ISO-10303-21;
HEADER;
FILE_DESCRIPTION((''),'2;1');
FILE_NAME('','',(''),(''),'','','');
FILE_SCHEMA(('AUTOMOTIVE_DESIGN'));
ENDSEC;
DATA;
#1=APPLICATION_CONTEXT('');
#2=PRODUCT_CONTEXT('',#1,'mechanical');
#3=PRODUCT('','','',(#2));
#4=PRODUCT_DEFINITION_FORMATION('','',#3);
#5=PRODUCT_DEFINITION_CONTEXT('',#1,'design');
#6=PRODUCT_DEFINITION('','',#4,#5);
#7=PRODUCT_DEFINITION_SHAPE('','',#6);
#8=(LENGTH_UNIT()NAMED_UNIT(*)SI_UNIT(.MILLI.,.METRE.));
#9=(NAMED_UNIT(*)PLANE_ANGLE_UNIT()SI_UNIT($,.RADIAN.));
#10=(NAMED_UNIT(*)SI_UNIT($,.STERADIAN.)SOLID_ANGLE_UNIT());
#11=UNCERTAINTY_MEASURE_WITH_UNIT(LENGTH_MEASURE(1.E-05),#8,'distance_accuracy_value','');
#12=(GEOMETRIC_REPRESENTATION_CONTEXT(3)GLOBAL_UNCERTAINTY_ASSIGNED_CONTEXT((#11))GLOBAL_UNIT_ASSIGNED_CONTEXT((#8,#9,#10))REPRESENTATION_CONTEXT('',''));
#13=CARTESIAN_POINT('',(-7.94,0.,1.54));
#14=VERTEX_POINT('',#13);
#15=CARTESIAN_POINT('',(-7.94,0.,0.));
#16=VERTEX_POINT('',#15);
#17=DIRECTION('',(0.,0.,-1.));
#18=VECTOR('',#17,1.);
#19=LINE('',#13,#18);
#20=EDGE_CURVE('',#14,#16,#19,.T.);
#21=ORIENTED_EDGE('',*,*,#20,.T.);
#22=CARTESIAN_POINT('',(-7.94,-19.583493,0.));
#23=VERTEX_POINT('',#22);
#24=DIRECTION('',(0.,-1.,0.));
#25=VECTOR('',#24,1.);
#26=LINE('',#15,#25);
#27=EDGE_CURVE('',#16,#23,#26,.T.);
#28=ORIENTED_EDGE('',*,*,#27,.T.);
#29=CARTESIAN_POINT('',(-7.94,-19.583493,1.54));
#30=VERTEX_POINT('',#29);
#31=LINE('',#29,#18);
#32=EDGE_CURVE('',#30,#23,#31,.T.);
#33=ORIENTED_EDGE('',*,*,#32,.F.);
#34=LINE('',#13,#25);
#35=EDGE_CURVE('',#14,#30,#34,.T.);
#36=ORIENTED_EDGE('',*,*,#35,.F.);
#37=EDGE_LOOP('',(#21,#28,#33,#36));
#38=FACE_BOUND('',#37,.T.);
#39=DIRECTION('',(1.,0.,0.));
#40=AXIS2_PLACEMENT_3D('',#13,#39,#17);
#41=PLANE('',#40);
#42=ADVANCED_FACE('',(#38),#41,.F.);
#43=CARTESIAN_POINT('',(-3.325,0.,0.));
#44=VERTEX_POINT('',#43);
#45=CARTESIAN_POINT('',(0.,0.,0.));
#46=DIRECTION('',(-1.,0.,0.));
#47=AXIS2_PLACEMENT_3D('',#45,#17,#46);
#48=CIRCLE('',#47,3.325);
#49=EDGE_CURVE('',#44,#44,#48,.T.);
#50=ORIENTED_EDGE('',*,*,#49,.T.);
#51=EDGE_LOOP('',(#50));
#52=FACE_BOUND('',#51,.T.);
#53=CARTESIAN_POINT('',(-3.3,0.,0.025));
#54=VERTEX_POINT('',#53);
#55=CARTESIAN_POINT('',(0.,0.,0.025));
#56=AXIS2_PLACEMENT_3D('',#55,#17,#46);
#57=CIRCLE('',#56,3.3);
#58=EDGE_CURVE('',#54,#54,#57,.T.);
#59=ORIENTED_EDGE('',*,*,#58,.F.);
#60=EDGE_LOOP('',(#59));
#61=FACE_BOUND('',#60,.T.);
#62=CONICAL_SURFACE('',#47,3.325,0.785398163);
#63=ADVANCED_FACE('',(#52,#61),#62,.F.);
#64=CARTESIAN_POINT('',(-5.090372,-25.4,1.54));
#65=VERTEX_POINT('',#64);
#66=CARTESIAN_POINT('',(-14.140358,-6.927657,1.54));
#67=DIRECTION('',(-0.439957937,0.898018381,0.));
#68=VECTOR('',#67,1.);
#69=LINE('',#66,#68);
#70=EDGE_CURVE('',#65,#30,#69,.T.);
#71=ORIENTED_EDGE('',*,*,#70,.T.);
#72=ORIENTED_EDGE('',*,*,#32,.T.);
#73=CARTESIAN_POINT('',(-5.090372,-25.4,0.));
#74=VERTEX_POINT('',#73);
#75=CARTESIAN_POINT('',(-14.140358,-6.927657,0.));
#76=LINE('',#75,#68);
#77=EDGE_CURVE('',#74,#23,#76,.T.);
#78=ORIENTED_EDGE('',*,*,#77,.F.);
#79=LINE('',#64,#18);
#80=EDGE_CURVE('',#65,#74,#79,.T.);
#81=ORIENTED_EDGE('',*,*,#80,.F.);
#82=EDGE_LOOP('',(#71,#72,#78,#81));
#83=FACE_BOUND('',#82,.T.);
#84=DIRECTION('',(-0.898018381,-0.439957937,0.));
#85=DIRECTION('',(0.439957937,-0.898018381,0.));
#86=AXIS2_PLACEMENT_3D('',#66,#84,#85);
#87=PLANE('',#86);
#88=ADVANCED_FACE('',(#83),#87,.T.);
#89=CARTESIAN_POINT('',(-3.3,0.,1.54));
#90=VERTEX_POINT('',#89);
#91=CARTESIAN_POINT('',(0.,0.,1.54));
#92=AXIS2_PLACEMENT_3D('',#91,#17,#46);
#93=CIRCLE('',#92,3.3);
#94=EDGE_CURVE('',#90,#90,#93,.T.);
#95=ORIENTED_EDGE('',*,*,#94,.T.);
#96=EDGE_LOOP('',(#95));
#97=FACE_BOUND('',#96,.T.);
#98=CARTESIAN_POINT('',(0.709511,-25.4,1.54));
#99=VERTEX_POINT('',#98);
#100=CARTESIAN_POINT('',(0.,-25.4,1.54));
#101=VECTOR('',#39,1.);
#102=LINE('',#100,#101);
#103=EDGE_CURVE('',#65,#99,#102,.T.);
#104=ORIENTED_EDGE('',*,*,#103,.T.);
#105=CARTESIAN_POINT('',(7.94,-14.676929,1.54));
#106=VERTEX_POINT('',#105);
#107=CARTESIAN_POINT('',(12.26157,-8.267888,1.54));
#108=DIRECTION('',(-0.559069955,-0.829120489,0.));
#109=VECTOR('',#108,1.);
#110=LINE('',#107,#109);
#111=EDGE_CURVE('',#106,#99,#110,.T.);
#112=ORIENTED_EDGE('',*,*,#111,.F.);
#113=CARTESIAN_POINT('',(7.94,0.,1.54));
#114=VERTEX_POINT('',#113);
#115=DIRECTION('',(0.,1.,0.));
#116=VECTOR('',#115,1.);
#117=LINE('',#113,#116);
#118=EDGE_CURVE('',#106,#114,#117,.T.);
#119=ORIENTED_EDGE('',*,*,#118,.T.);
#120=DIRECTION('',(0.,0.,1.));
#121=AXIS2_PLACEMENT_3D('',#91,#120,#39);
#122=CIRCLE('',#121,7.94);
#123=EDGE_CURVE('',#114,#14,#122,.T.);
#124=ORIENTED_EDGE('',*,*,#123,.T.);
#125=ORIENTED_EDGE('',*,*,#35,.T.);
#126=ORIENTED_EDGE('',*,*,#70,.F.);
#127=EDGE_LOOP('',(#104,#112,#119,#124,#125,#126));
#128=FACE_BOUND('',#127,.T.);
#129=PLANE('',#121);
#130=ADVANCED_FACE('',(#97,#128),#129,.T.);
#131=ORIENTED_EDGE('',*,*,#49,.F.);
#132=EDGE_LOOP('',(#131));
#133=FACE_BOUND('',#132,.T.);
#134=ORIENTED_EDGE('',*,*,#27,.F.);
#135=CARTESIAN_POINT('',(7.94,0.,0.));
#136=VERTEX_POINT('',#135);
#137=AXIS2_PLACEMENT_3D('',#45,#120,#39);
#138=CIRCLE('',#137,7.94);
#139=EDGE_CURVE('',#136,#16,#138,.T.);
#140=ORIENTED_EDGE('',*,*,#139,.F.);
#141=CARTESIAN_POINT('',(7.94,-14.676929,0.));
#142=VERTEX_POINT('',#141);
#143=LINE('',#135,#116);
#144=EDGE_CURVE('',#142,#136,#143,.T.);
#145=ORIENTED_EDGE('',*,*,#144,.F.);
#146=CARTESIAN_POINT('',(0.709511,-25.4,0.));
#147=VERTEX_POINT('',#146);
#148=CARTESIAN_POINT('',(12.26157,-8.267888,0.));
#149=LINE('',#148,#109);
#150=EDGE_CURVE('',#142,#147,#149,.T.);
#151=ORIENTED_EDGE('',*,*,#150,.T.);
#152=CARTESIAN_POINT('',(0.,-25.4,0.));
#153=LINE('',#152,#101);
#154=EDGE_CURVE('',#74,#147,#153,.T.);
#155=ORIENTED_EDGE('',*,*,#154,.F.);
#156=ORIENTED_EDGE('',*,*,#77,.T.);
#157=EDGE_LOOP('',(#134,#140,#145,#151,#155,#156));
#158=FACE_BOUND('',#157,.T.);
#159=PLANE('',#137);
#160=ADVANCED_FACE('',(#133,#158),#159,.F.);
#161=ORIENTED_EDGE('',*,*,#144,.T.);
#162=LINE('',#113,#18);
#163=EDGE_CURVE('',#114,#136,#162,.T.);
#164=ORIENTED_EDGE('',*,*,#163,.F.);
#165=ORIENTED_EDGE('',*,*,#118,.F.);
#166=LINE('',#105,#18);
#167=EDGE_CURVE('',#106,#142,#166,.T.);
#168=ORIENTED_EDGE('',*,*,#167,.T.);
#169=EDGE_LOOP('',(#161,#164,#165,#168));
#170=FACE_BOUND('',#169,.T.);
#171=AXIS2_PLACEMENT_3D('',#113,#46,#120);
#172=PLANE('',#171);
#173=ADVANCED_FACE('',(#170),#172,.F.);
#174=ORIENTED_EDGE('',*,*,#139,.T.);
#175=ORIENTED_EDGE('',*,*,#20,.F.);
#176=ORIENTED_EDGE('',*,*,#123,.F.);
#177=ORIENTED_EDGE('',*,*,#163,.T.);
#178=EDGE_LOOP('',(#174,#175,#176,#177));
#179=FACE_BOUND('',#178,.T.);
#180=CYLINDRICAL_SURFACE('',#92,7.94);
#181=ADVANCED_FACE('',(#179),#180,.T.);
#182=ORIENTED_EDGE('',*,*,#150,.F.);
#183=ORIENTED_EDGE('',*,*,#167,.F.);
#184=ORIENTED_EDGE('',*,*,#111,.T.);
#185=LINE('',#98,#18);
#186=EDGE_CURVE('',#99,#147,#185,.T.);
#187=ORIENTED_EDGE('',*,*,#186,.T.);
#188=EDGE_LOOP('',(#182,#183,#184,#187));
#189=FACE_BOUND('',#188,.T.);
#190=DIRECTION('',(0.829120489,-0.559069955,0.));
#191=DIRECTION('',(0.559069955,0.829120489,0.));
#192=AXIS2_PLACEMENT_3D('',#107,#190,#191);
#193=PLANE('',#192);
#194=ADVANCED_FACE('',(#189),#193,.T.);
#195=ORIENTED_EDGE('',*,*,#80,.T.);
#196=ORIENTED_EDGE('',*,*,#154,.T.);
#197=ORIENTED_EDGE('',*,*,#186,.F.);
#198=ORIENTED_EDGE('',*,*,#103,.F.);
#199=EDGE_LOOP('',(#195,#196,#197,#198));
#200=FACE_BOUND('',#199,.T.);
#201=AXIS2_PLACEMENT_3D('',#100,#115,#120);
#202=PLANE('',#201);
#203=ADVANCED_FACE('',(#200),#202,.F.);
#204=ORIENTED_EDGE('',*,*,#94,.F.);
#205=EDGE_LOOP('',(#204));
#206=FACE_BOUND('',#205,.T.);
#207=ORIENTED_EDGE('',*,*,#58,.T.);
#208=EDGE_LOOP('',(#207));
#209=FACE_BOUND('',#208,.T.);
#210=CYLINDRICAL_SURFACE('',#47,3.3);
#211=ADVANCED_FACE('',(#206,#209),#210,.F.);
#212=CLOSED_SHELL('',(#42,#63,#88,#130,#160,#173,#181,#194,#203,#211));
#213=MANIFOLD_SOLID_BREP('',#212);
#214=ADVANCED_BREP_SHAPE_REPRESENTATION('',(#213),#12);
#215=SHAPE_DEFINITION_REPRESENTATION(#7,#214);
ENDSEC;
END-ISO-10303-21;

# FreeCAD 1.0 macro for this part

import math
import FreeCAD as App
import Part
import Sketcher
Q = App.Units.Quantity

doc = App.newDocument("Part")
body = doc.addObject("PartDesign::Body", "Body")

sketch1 = body.newObject("Sketcher::SketchObject", "Sketch")
sketch1.AttachmentSupport = (doc.getObject("XY_Plane"), [""])
sketch1.MapMode = "FlatFace"
sketch1.addGeometry(Part.LineSegment(App.Vector(7.94, -14.676929, 0), App.Vector(7.94, 0, 0)), False)
sketch1.addGeometry(Part.ArcOfCircle(Part.Circle(App.Vector(0, 0, 0), App.Vector(0, 0, 1), 7.94), math.radians(0), math.radians(180)), False)
sketch1.addGeometry(Part.LineSegment(App.Vector(-7.94, 0, 0), App.Vector(-7.94, -19.583493, 0)), False)
sketch1.addGeometry(Part.LineSegment(App.Vector(-7.94, -19.583493, 0), App.Vector(-5.090372, -25.4, 0)), False)
sketch1.addGeometry(Part.LineSegment(App.Vector(-5.090372, -25.4, 0), App.Vector(0.709511, -25.4, 0)), False)
sketch1.addGeometry(Part.LineSegment(App.Vector(0.709511, -25.4, 0), App.Vector(7.94, -14.676929, 0)), False)
sketch1.addConstraint(Sketcher.Constraint("Tangent", 0, 2, 1, 1))
sketch1.addConstraint(Sketcher.Constraint("Tangent", 1, 2, 2, 1))
sketch1.addConstraint(Sketcher.Constraint("Coincident", 2, 2, 3, 1))
sketch1.addConstraint(Sketcher.Constraint("Coincident", 3, 2, 4, 1))
sketch1.addConstraint(Sketcher.Constraint("Coincident", 4, 2, 5, 1))
sketch1.addConstraint(Sketcher.Constraint("Coincident", 5, 2, 0, 1))
sketch1.addConstraint(Sketcher.Constraint("Vertical", 0))
sketch1.addConstraint(Sketcher.Constraint("Vertical", 2))
sketch1.addConstraint(Sketcher.Constraint("Horizontal", 4))
sketch1.addConstraint(Sketcher.Constraint("Coincident", 1, 3, -1, 1))
sketch1.addConstraint(Sketcher.Constraint("Radius", 1, 7.94))
sketch1.addConstraint(Sketcher.Constraint("DistanceY", 3, 2, -1, 1, 25.4))
sketch1.addConstraint(Sketcher.Constraint("DistanceY", 0, 1, 0, 2, 14.676929))
sketch1.addConstraint(Sketcher.Constraint("DistanceX", 4, 1, 4, 2, 5.799883))
sketch1.addConstraint(Sketcher.Constraint("DistanceY", 2, 2, 2, 1, 19.583493))
sketch1.addConstraint(Sketcher.Constraint("DistanceX", 3, 2, -1, 1, 5.090372))
pad1 = body.newObject("PartDesign::Pad", "Pad")
pad1.Profile = sketch1
pad1.Length = 1.54

sketch2 = body.newObject("Sketcher::SketchObject", "Sketch001")
sketch2.AttachmentSupport = (doc.getObject("YZ_Plane"), [""])
sketch2.MapMode = "FlatFace"
sketch2.addGeometry(Part.LineSegment(App.Vector(0, 1.54, 0), App.Vector(0, 0, 0)), False)
sketch2.addGeometry(Part.LineSegment(App.Vector(0, 0, 0), App.Vector(3.325, 0, 0)), False)
sketch2.addGeometry(Part.LineSegment(App.Vector(3.325, 0, 0), App.Vector(3.3, 0.025, 0)), False)
sketch2.addGeometry(Part.LineSegment(App.Vector(3.3, 0.025, 0), App.Vector(3.3, 1.54, 0)), False)
sketch2.addGeometry(Part.LineSegment(App.Vector(3.3, 1.54, 0), App.Vector(0, 1.54, 0)), False)
sketch2.addConstraint(Sketcher.Constraint("Coincident", 0, 2, 1, 1))
sketch2.addConstraint(Sketcher.Constraint("Coincident", 1, 2, 2, 1))
sketch2.addConstraint(Sketcher.Constraint("Coincident", 2, 2, 3, 1))
sketch2.addConstraint(Sketcher.Constraint("Coincident", 3, 2, 4, 1))
sketch2.addConstraint(Sketcher.Constraint("Coincident", 4, 2, 0, 1))
sketch2.addConstraint(Sketcher.Constraint("Vertical", 0))
sketch2.addConstraint(Sketcher.Constraint("Horizontal", 1))
sketch2.addConstraint(Sketcher.Constraint("Vertical", 3))
sketch2.addConstraint(Sketcher.Constraint("Horizontal", 4))
sketch2.addConstraint(Sketcher.Constraint("Coincident", 0, 2, -1, 1))
sketch2.addConstraint(Sketcher.Constraint("Angle", 2, Q("135 deg")))
sketch2.addConstraint(Sketcher.Constraint("DistanceX", 4, 2, 4, 1, 3.3))
sketch2.addConstraint(Sketcher.Constraint("DistanceY", 0, 2, 0, 1, 1.54))
sketch2.addConstraint(Sketcher.Constraint("DistanceX", 1, 1, 1, 2, 3.325))
groove = body.newObject("PartDesign::Groove", "Groove")
groove.Profile = sketch2
groove.ReferenceAxis = (sketch2, ["V_Axis"])
groove.Angle = 360

doc.recompute()
